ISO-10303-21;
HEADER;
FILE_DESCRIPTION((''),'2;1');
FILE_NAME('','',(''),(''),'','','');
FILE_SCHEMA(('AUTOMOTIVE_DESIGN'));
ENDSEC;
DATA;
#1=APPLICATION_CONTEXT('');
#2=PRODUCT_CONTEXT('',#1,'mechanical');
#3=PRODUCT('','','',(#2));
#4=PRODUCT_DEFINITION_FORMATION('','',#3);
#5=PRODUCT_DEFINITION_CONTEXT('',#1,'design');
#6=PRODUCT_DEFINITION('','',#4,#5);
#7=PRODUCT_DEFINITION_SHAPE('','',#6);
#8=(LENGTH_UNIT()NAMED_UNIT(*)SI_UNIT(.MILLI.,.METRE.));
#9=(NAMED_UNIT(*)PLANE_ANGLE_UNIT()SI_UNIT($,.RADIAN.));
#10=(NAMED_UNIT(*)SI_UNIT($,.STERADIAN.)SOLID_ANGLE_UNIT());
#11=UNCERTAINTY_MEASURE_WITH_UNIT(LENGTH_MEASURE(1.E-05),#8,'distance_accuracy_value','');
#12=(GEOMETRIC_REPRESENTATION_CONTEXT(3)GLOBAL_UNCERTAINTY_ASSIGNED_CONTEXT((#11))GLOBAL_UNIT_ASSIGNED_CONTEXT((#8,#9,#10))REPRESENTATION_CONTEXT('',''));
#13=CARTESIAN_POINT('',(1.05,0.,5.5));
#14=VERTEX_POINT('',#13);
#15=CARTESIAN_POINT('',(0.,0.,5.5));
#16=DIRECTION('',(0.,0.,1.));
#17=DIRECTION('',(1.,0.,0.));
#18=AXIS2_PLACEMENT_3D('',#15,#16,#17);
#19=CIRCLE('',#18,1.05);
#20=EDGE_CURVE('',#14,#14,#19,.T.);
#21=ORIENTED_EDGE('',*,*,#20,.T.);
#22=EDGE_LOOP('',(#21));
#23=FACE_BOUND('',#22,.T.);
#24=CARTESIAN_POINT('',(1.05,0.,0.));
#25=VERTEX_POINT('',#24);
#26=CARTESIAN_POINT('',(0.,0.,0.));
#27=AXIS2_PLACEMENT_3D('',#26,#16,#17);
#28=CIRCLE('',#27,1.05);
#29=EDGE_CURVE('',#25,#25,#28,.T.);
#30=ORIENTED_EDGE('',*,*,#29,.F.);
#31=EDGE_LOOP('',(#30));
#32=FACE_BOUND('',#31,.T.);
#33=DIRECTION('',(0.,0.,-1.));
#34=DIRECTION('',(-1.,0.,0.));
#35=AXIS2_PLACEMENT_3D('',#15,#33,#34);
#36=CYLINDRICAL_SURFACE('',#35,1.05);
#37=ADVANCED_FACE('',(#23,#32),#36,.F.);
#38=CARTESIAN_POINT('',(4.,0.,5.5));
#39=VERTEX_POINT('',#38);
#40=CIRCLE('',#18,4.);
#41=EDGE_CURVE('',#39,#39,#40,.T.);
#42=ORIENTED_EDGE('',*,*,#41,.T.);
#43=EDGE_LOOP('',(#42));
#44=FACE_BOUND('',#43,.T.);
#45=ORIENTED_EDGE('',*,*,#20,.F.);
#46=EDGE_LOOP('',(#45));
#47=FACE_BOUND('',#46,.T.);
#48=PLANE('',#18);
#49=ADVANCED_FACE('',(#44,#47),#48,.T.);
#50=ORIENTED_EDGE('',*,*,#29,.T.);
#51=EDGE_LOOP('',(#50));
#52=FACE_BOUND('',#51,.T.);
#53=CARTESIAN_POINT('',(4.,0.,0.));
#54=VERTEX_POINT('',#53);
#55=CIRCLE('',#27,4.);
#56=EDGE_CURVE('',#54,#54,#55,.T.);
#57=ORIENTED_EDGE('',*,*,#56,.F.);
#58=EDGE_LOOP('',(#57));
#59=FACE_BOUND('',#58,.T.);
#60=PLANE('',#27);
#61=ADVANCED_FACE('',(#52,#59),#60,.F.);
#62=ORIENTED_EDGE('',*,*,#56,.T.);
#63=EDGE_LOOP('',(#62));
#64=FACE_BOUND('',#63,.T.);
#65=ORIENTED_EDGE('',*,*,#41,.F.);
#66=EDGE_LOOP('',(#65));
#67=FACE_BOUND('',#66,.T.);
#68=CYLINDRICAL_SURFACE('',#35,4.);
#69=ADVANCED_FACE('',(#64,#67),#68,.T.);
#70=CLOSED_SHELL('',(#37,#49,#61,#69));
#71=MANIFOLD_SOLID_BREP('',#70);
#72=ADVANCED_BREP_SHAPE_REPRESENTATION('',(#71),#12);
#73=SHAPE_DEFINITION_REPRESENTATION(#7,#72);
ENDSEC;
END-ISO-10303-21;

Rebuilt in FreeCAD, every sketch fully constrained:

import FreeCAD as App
import Part
import Sketcher

V = App.Vector
Q = App.Units.Quantity

doc = App.newDocument("Part")
body = doc.addObject("PartDesign::Body", "Body")

sketch1 = body.newObject("Sketcher::SketchObject", "Sketch")
sketch1.AttachmentSupport = (doc.getObject("XY_Plane"), [""])
sketch1.MapMode = "FlatFace"
sketch1.addGeometry([
    Part.Circle(V(0, 0, 0), V(0, 0, 1), 4),
    Part.Circle(V(0, 0, 0), V(0, 0, 1), 1.05),
], False)
sketch1.addConstraint([
    Sketcher.Constraint("Coincident", 0, 3, -1, 1),
    Sketcher.Constraint("Coincident", 1, 3, -1, 1),
    Sketcher.Constraint("Diameter", 0, Q("8 mm")),
    Sketcher.Constraint("Diameter", 1, Q("2.1 mm")),
])
pad1 = body.newObject("PartDesign::Pad", "Pad")
pad1.Profile = sketch1
pad1.Length = 5.5

doc.recompute()
